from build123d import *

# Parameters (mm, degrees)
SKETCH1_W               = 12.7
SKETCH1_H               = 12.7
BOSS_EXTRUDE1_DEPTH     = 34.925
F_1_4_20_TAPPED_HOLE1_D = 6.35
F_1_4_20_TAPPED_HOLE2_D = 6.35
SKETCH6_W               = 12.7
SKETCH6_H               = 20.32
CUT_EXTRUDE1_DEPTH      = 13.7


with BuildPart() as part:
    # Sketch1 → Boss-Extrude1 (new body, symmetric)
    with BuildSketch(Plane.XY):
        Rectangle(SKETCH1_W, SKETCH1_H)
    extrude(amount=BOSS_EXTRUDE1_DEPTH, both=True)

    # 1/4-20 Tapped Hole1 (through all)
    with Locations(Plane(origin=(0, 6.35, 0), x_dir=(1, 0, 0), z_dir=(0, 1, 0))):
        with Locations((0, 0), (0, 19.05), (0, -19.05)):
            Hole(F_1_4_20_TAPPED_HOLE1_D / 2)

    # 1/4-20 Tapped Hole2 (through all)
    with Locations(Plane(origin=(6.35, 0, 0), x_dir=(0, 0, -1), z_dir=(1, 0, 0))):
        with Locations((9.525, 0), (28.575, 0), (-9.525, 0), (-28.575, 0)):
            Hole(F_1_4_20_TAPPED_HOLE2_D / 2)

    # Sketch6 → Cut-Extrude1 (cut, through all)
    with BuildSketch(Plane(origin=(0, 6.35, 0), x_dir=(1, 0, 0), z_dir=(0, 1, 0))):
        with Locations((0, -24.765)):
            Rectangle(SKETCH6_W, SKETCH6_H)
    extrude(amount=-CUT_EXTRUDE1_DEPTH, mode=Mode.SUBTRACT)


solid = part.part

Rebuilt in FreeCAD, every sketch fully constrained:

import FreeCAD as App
import Part
import Sketcher

V = App.Vector
Q = App.Units.Quantity

doc = App.newDocument("Part")
body = doc.addObject("PartDesign::Body", "Body")

# Sketch on XY plane
sketch1 = body.newObject("Sketcher::SketchObject", "Sketch")
sketch1.AttachmentSupport = (doc.getObject("XY_Plane"), [""])
sketch1.MapMode = "FlatFace"
sketch1.addGeometry([
    Part.LineSegment(V(-6, 6, 0), V(-6, -6, 0)),
    Part.LineSegment(V(-6, -6, 0), V(6, -6, 0)),
    Part.LineSegment(V(6, -6, 0), V(6, 6, 0)),
    Part.LineSegment(V(6, 6, 0), V(-6, 6, 0)),
], False)
sketch1.addConstraint([
    Sketcher.Constraint("Coincident", 0, 2, 1, 1),
    Sketcher.Constraint("Coincident", 1, 2, 2, 1),
    Sketcher.Constraint("Coincident", 2, 2, 3, 1),
    Sketcher.Constraint("Coincident", 3, 2, 0, 1),
    Sketcher.Constraint("Vertical", 0),
    Sketcher.Constraint("Horizontal", 1),
    Sketcher.Constraint("Vertical", 2),
    Sketcher.Constraint("Horizontal", 3),
    Sketcher.Constraint("Symmetric", 0, 2, 2, 2, -1, 1),
    Sketcher.Constraint("Equal", 3, 0),
    Sketcher.Constraint("DistanceX", 1, 1, 1, 2, Q("0.5 in")),
])
pad1 = body.newObject("PartDesign::Pad", "Pad")
pad1.Profile = sketch1
pad1.Length = Q("2.75 in")
pad1.Midplane = True

# Sketch on XZ plane
sketch2 = body.newObject("Sketcher::SketchObject", "Sketch001")
sketch2.AttachmentSupport = (doc.getObject("XZ_Plane"), [""])
sketch2.MapMode = "FlatFace"
sketch2.AttachmentOffset = App.Placement(V(0, 0, -0.25 * 25.4), App.Rotation())
sketch2.addGeometry([
    Part.Circle(V(0, 0, 0), V(0, 0, 1), 3.2),
    Part.Circle(V(0, -19.1, 0), V(0, 0, 1), 3.2),
    Part.Circle(V(0, 19.1, 0), V(0, 0, 1), 3.2),
], False)
sketch2.addConstraint([
    Sketcher.Constraint("Coincident", 0, 3, -1, 1),
    Sketcher.Constraint("Equal", 0, 1),
    Sketcher.Constraint("Equal", 1, 2),
    Sketcher.Constraint("Symmetric", 1, 3, 2, 3, -1, 1),
    Sketcher.Constraint("PointOnObject", 1, 3, -2),
    Sketcher.Constraint("Diameter", 0, Q("0.25 in")),
    Sketcher.Constraint("DistanceY", 1, 3, 2, 3, Q("1.5 in")),
])
doc.recompute()
hole = body.newObject("PartDesign::Hole", "Hole")
hole.Profile = sketch2
hole.ThreadType = "None"
hole.Diameter = Q("0.25 in")
hole.DepthType = "ThroughAll"
hole.Reversed = True

# Sketch on YZ plane
sketch3 = body.newObject("Sketcher::SketchObject", "Sketch002")
sketch3.AttachmentSupport = (doc.getObject("YZ_Plane"), [""])
sketch3.MapMode = "FlatFace"
sketch3.AttachmentOffset = App.Placement(V(0, 0, 0.25 * 25.4), App.Rotation())
sketch3.addGeometry([
    Part.Circle(V(0, -9.5, 0), V(0, 0, 1), 3.2),
    Part.Circle(V(0, -28.6, 0), V(0, 0, 1), 3.2),
    Part.Circle(V(0, 9.5, 0), V(0, 0, 1), 3.2),
    Part.Circle(V(0, 28.6, 0), V(0, 0, 1), 3.2),
], False)
sketch3.addConstraint([
    Sketcher.Constraint("Equal", 0, 1),
    Sketcher.Constraint("Equal", 1, 2),
    Sketcher.Constraint("Equal", 2, 3),
    Sketcher.Constraint("Symmetric", 0, 3, 2, 3, -1, 1),
    Sketcher.Constraint("Symmetric", 1, 3, 3, 3, -1, 1),
    Sketcher.Constraint("PointOnObject", 0, 3, -2),
    Sketcher.Constraint("PointOnObject", 1, 3, -2),
    Sketcher.Constraint("Diameter", 0, Q("0.25 in")),
    Sketcher.Constraint("DistanceY", 1, 3, 2, 3, Q("1.5 in")),
    Sketcher.Constraint("DistanceY", 1, 3, 0, 3, Q("0.75 in")),
])
doc.recompute()
hole2 = body.newObject("PartDesign::Hole", "Hole001")
hole2.Profile = sketch3
hole2.ThreadType = "None"
hole2.Diameter = Q("0.25 in")
hole2.DepthType = "ThroughAll"

# Sketch on XZ plane
sketch4 = body.newObject("Sketcher::SketchObject", "Sketch003")
sketch4.AttachmentSupport = (doc.getObject("XZ_Plane"), [""])
sketch4.MapMode = "FlatFace"
sketch4.AttachmentOffset = App.Placement(V(0, 0, -0.25 * 25.4), App.Rotation())
sketch4.addGeometry([
    Part.LineSegment(V(-6, 15, 0), V(-6, 35, 0)),
    Part.LineSegment(V(-6, 35, 0), V(6, 35, 0)),
    Part.LineSegment(V(6, 35, 0), V(6, 15, 0)),
    Part.LineSegment(V(6, 15, 0), V(-6, 15, 0)),
], False)
sketch4.addConstraint([
    Sketcher.Constraint("Coincident", 0, 2, 1, 1),
    Sketcher.Constraint("Coincident", 1, 2, 2, 1),
    Sketcher.Constraint("Coincident", 2, 2, 3, 1),
    Sketcher.Constraint("Coincident", 3, 2, 0, 1),
    Sketcher.Constraint("Vertical", 0),
    Sketcher.Constraint("Horizontal", 1),
    Sketcher.Constraint("Vertical", 2),
    Sketcher.Constraint("Horizontal", 3),
    Sketcher.Constraint("DistanceX", 1, 1, 1, 2, Q("0.5 in")),
    Sketcher.Constraint("DistanceY", 0, 1, 0, 2, Q("0.8 in")),
    Sketcher.Constraint("DistanceX", 0, 2, -1, 1, Q("0.25 in")),
    Sketcher.Constraint("DistanceY", -1, 1, 0, 2, Q("1.375 in")),
])
pocket1 = body.newObject("PartDesign::Pocket", "Pocket")
pocket1.Profile = sketch4
pocket1.Type = "ThroughAll"
pocket1.Reversed = True

doc.recompute()
